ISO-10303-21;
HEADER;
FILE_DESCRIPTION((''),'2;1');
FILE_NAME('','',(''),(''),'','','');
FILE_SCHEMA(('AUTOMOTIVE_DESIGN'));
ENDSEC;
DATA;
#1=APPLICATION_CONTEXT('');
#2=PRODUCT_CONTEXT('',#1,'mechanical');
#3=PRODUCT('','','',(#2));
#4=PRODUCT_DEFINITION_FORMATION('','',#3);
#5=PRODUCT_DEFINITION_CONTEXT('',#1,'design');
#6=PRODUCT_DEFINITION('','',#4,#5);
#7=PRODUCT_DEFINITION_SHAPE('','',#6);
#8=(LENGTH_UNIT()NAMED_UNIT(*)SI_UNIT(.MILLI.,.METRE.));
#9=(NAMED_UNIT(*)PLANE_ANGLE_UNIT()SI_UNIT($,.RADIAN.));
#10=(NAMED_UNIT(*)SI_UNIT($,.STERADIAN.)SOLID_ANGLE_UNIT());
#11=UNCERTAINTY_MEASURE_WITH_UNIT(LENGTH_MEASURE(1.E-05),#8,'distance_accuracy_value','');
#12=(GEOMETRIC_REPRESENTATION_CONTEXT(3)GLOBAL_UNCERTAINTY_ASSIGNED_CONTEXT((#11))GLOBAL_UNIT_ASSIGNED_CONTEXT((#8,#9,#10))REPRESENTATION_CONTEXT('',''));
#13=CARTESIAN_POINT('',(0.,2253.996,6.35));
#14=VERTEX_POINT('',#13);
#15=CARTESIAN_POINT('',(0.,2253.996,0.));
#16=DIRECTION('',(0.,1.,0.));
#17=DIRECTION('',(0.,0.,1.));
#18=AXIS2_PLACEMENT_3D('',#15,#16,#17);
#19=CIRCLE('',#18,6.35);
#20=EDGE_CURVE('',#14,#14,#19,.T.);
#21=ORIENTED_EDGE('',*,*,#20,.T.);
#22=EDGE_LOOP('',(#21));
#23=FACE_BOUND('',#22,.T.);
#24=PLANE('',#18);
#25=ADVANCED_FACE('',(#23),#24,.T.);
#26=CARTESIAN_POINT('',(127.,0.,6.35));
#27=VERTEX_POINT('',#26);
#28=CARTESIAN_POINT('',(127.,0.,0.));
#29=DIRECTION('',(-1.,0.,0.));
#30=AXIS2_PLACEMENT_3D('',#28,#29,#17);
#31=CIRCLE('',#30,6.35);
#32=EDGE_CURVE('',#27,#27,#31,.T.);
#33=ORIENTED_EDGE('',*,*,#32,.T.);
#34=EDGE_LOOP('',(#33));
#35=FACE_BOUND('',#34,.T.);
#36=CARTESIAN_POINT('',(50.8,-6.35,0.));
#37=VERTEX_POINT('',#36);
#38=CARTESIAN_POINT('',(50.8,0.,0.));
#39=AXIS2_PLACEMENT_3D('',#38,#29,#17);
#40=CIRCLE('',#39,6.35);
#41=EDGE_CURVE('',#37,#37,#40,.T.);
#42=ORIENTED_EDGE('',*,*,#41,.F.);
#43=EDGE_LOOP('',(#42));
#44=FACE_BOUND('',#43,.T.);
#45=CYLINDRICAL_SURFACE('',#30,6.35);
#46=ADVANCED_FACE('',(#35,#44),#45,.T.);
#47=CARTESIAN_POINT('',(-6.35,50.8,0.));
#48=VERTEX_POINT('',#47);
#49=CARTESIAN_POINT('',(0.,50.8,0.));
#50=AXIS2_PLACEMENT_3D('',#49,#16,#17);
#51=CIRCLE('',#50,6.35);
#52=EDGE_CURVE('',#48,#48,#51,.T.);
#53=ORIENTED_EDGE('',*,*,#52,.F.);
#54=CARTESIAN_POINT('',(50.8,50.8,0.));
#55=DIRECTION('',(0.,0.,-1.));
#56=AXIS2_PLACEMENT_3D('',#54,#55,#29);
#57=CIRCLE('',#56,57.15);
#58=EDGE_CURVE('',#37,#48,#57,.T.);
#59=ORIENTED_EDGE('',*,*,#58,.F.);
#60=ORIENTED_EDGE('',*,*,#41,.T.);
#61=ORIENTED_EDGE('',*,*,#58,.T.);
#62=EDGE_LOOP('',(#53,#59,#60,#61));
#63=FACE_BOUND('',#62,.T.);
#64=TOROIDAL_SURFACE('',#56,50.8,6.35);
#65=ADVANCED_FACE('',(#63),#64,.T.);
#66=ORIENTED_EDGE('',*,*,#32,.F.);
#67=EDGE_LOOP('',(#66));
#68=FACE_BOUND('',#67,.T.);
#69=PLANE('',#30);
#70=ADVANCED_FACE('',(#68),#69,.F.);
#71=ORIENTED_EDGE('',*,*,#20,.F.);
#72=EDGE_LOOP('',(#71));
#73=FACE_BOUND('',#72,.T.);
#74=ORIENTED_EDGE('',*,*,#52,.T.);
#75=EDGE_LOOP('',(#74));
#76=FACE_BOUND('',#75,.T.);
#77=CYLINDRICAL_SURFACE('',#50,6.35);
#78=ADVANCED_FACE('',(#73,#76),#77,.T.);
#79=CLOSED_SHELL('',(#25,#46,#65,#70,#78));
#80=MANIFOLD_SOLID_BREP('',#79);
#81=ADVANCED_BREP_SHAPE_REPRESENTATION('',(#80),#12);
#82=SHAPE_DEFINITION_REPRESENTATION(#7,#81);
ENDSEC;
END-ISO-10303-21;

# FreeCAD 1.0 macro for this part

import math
import FreeCAD as App
import Part
import Sketcher

V = App.Vector
Q = App.Units.Quantity

doc = App.newDocument("Part")
params = doc.addObject("Spreadsheet::Sheet", "Params")
for row, (alias, value) in enumerate([
    ("sketch1_diameter", "0.5 in"),
    ("sketch2_radius", "2 in"),
    ("sketch2_width", "3 in"),
    ("sketch2_height", "86.74 in"),
], start=1):
    params.set(f"A{row}", alias)
    params.set(f"B{row}", "=" + value)
    params.setAlias(f"B{row}", alias)

body = doc.addObject("PartDesign::Body", "Body")

# Sketch on XZ plane
sketch1 = body.newObject("Sketcher::SketchObject", "Sketch")
sketch1.AttachmentSupport = (doc.getObject("XZ_Plane"), [""])
sketch1.MapMode = "FlatFace"
sketch1.AttachmentOffset = App.Placement(V(0, 0, -88.74 * 25.4), App.Rotation())
sketch1.addGeometry(Part.Circle(V(0, 0, 0), V(0, 0, 1), 6.35), False)
sketch1.addConstraint([
    Sketcher.Constraint("Coincident", 0, 3, -1, 1),
    Sketcher.Constraint("Diameter", 0, Q("0.5 in")),
])
sketch1.setExpression("Constraints[1]", "Params.sketch1_diameter")

# Sketch on XY plane
sketch2 = body.newObject("Sketcher::SketchObject", "Sketch001")
sketch2.AttachmentSupport = (doc.getObject("XY_Plane"), [""])
sketch2.MapMode = "FlatFace"
sketch2.addGeometry([
    Part.LineSegment(V(0, 2253.996, 0), V(0, 50.8, 0)),
    Part.ArcOfCircle(Part.Circle(V(50.8, 50.8, 0), V(0, 0, 1), 50.8), math.radians(-180), math.radians(-90)),
    Part.LineSegment(V(50.8, 0, 0), V(127, 0, 0)),
], False)
sketch2.addConstraint([
    Sketcher.Constraint("Tangent", 0, 2, 1, 1),
    Sketcher.Constraint("Tangent", 1, 2, 2, 1),
    Sketcher.Constraint("Vertical", 0),
    Sketcher.Constraint("Horizontal", 2),
    Sketcher.Constraint("PointOnObject", 0, 1, -2),
    Sketcher.Constraint("PointOnObject", 1, 2, -1),
    Sketcher.Constraint("Radius", 1, Q("2 in")),
    Sketcher.Constraint("DistanceX", 2, 1, 2, 2, Q("3 in")),
    Sketcher.Constraint("DistanceY", 0, 2, 0, 1, Q("86.74 in")),
])
sketch2.setExpression("Constraints[6]", "Params.sketch2_radius")
sketch2.setExpression("Constraints[7]", "Params.sketch2_width")
sketch2.setExpression("Constraints[8]", "Params.sketch2_height")
doc.recompute()

additivepipe = body.newObject("PartDesign::AdditivePipe", "AdditivePipe")
additivepipe.Profile = sketch1
additivepipe.Spine = (sketch2, ["Edge1", "Edge2", "Edge3"])

doc.recompute()
